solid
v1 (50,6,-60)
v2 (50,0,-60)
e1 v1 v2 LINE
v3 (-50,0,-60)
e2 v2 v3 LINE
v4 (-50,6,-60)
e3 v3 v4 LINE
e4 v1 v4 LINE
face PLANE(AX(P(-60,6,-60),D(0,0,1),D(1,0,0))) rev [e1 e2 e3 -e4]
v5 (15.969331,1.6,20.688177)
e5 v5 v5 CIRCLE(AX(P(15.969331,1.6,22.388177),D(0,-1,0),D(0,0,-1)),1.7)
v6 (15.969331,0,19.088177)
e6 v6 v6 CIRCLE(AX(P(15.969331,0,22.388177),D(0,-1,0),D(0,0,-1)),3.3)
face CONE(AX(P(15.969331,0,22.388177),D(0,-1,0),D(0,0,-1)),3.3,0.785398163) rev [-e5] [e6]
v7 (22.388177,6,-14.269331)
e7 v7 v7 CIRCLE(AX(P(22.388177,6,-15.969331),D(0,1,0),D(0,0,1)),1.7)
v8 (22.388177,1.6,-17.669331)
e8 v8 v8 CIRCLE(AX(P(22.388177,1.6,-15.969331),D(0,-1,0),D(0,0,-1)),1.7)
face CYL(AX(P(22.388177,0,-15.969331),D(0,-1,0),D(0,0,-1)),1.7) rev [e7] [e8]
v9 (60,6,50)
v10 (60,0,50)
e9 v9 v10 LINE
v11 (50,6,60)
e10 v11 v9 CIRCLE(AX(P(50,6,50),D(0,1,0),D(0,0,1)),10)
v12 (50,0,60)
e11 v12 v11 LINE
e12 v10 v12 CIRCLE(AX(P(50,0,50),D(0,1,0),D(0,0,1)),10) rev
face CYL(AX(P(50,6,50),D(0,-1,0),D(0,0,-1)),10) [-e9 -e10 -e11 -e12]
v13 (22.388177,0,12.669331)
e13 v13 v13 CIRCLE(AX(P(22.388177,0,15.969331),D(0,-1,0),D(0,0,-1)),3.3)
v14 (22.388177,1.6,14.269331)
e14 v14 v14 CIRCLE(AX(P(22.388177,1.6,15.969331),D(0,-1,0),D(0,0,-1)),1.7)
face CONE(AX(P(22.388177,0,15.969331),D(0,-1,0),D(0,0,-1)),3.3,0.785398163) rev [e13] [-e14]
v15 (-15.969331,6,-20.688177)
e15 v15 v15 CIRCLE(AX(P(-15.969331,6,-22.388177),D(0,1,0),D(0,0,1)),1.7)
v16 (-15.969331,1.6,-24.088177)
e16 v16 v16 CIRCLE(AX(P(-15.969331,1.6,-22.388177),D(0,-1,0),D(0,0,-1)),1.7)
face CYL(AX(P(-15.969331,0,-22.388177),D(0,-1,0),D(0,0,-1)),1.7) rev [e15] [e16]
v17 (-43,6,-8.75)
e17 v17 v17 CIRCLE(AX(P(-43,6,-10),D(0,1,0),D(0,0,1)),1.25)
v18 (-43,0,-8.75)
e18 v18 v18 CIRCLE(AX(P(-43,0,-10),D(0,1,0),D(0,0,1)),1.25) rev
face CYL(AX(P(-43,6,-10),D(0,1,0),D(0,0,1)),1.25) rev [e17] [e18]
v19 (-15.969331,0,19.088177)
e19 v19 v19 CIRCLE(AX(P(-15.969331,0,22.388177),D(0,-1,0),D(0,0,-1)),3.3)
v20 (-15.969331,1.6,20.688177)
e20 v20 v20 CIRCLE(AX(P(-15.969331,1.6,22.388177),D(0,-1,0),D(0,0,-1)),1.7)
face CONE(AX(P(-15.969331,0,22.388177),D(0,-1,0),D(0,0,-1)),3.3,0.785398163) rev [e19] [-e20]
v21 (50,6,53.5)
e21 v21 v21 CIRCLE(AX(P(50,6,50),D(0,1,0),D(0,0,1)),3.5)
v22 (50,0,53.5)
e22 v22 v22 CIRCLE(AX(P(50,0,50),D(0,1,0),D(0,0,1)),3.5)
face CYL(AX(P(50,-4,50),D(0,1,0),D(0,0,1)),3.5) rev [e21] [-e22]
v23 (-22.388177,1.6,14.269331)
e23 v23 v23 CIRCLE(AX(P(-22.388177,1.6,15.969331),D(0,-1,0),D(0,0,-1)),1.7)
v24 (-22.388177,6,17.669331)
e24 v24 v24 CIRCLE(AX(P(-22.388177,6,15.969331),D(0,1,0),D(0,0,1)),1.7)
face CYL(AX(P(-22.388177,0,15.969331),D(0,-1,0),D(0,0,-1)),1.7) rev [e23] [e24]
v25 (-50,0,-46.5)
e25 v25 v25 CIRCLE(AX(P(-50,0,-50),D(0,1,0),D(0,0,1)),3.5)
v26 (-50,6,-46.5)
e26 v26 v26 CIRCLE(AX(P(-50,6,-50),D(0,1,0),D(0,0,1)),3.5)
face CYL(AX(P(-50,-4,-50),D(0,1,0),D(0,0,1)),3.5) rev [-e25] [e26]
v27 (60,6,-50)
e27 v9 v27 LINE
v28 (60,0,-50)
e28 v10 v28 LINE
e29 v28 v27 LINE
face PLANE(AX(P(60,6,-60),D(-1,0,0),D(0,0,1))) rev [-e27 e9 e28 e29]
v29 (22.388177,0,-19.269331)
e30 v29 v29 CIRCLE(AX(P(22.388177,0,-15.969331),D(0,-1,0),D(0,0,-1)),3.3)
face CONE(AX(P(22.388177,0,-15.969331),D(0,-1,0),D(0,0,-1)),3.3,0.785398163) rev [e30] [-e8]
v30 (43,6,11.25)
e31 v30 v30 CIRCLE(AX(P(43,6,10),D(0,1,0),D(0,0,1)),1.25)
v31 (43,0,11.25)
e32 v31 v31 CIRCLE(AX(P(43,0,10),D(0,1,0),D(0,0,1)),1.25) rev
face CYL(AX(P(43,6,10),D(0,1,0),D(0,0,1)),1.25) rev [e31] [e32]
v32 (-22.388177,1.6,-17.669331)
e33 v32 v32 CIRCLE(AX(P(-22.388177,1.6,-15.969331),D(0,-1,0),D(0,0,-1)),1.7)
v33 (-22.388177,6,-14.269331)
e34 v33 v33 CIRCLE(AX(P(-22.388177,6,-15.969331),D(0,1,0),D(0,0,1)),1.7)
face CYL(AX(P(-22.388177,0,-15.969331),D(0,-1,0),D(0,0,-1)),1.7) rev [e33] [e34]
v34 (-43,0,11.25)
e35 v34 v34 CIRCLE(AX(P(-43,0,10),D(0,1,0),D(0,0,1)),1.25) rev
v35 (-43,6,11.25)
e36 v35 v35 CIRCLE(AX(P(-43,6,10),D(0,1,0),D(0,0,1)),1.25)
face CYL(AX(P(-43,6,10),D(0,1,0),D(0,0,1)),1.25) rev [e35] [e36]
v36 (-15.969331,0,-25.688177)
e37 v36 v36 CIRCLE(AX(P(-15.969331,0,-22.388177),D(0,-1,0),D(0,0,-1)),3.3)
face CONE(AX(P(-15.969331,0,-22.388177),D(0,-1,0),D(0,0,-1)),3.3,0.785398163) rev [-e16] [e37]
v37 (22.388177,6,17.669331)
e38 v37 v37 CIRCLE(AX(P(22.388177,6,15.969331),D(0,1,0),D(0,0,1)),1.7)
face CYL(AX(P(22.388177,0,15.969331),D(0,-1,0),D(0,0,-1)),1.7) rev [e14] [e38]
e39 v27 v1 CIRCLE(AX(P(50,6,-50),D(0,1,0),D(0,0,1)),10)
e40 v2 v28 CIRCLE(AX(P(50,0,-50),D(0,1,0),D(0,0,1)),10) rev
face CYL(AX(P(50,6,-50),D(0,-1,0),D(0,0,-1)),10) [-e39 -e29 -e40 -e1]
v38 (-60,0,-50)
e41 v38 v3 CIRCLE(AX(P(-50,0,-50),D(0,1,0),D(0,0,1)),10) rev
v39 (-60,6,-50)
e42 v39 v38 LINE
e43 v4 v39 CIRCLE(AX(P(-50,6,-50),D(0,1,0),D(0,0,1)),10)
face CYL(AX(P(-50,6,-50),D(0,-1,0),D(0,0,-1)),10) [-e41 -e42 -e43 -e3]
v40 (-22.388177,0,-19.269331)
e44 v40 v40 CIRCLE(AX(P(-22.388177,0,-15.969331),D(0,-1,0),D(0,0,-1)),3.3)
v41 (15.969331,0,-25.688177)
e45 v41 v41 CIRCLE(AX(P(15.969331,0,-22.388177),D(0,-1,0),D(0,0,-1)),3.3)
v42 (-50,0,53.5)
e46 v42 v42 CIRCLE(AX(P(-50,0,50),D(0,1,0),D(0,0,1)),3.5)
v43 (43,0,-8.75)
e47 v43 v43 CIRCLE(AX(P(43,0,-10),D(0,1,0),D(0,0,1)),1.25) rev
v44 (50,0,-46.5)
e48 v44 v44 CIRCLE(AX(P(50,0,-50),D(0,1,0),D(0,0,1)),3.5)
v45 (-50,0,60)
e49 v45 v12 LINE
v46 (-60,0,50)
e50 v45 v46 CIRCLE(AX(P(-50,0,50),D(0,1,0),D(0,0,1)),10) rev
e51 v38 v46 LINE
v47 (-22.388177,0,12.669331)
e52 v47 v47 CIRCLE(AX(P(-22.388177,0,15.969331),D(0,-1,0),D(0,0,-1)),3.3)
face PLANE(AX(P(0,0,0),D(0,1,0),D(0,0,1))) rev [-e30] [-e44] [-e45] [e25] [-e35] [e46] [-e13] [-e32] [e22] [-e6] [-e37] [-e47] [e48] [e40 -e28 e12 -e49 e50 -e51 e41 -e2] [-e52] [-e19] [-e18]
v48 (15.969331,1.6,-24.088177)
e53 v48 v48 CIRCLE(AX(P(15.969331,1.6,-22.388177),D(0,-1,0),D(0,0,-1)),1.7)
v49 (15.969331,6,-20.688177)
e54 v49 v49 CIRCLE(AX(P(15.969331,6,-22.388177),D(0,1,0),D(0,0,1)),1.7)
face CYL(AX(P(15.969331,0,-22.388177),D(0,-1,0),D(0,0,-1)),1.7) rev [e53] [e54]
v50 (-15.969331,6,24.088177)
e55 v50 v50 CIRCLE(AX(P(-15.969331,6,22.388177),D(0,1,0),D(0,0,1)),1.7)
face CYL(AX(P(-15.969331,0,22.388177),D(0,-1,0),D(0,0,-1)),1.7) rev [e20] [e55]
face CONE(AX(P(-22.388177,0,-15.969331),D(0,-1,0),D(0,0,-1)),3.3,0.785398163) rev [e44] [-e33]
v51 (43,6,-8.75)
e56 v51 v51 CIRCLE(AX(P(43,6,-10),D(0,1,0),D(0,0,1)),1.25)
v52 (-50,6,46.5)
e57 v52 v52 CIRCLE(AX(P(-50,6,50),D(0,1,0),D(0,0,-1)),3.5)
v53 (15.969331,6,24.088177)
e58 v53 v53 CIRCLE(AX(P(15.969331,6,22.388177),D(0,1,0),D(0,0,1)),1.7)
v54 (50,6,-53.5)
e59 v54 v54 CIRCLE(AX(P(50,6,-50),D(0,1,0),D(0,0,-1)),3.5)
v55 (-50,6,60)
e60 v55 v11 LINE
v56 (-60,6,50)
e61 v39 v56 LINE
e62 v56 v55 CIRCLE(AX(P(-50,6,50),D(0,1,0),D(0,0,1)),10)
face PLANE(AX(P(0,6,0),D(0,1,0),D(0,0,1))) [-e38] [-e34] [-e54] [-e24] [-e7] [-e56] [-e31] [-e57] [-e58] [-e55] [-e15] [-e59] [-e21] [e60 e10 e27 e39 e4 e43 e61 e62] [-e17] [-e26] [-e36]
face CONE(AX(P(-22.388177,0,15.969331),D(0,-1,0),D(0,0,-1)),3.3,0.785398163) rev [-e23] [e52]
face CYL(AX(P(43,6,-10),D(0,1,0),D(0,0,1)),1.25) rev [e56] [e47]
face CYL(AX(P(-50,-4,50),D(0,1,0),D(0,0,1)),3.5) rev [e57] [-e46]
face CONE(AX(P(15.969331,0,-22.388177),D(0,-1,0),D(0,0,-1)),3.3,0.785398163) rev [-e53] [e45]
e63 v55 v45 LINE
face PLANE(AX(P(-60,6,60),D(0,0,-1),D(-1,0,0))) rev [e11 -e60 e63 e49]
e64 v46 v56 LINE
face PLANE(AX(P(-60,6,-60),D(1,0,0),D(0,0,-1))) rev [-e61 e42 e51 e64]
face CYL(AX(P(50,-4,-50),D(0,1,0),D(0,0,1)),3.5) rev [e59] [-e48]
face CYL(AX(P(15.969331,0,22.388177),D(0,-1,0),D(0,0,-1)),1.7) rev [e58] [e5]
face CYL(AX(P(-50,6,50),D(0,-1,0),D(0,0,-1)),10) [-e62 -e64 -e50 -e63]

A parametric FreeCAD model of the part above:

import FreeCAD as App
import Part
import Sketcher

V = App.Vector


def edges_at(feature, points):
    """Names of the edges that pass closest to the given points."""
    edges = feature.Shape.Edges
    near = lambda p: min(range(len(edges)), key=lambda i: edges[i].distToShape(Part.Vertex(*p))[0])
    return sorted({f"Edge{near(p) + 1}" for p in points})

doc = App.newDocument("Part")
body = doc.addObject("PartDesign::Body", "Body")

# Sketch on XZ plane
sketch1 = doc.addObject("Sketcher::SketchObject", "Sketch")
body.addObject(sketch1)
sketch1.AttachmentSupport = (doc.XZ_Plane, [""])
sketch1.MapMode = "FlatFace"
sketch1.addGeometry(Part.LineSegment(V(-60, -60, 0), V(-60, 60, 0)), False)
sketch1.addGeometry(Part.LineSegment(V(-60, 60, 0), V(60, 60, 0)), False)
sketch1.addGeometry(Part.LineSegment(V(60, 60, 0), V(60, -60, 0)), False)
sketch1.addGeometry(Part.LineSegment(V(60, -60, 0), V(-60, -60, 0)), False)
sketch1.addConstraint(Sketcher.Constraint("Coincident", 0, 2, 1, 1))
sketch1.addConstraint(Sketcher.Constraint("Coincident", 1, 2, 2, 1))
sketch1.addConstraint(Sketcher.Constraint("Coincident", 2, 2, 3, 1))
sketch1.addConstraint(Sketcher.Constraint("Coincident", 3, 2, 0, 1))
sketch1.addConstraint(Sketcher.Constraint("Vertical", 0))
sketch1.addConstraint(Sketcher.Constraint("Horizontal", 1))
sketch1.addConstraint(Sketcher.Constraint("Vertical", 2))
sketch1.addConstraint(Sketcher.Constraint("Horizontal", 3))
sketch1.addConstraint(Sketcher.Constraint("Symmetric", 0, 2, 2, 2, -1, 1))
sketch1.addConstraint(Sketcher.Constraint("Equal", 3, 0))
sketch1.addConstraint(Sketcher.Constraint("DistanceX", 1, 1, 1, 2, 120.0))
pad1 = doc.addObject("PartDesign::Pad", "Pad")
body.addObject(pad1)
pad1.Profile = sketch1
pad1.Length = 6
pad1.Reversed = True

# Sketch on XZ plane
sketch2 = doc.addObject("Sketcher::SketchObject", "Sketch001")
body.addObject(sketch2)
sketch2.AttachmentSupport = (doc.XZ_Plane, [""])
sketch2.MapMode = "FlatFace"
sketch2.AttachmentOffset = App.Placement(V(0, 0, -6), App.Rotation())
sketch2.addGeometry(Part.Circle(V(-50, -50, 0), V(0, 0, 1), 3.5), False)
sketch2.addGeometry(Part.Circle(V(50, -50, 0), V(0, 0, 1), 3.5), False)
sketch2.addGeometry(Part.Circle(V(50, 50, 0), V(0, 0, 1), 3.5), False)
sketch2.addGeometry(Part.Circle(V(-50, 50, 0), V(0, 0, 1), 3.5), False)
sketch2.addConstraint(Sketcher.Constraint("Equal", 0, 1))
sketch2.addConstraint(Sketcher.Constraint("Equal", 1, 2))
sketch2.addConstraint(Sketcher.Constraint("Equal", 2, 3))
sketch2.addConstraint(Sketcher.Constraint("Symmetric", 0, 3, 2, 3, -1, 1))
sketch2.addConstraint(Sketcher.Constraint("Symmetric", 1, 3, 3, 3, -1, 1))
sketch2.addConstraint(Sketcher.Constraint("Symmetric", 0, 3, 1, 3, -2))
sketch2.addConstraint(Sketcher.Constraint("Diameter", 0, 7.0))
sketch2.addConstraint(Sketcher.Constraint("DistanceX", 0, 3, -1, 1, 50.0))
sketch2.addConstraint(Sketcher.Constraint("DistanceY", 0, 3, -1, 1, 50.0))
pocket1 = doc.addObject("PartDesign::Pocket", "Pocket")
body.addObject(pocket1)
pocket1.Profile = sketch2
pocket1.Length = 10
pocket1.Reversed = True
doc.recompute()

fillet = doc.addObject("PartDesign::Fillet", "Fillet")
body.addObject(fillet)
fillet.Base = (pocket1, edges_at(pocket1, [
    (60, 3, 60),
    (-60, 3, 60),
    (-60, 3, -60),
    (60, 3, -60),
]))
fillet.Radius = 10

# Sketch on XZ plane
sketch3 = doc.addObject("Sketcher::SketchObject", "Sketch002")
body.addObject(sketch3)
sketch3.AttachmentSupport = (doc.XZ_Plane, [""])
sketch3.MapMode = "FlatFace"
sketch3.addGeometry(Part.Circle(V(15.969331, -22.388177, 0), V(0, 0, 1), 1.7), False)
sketch3.addGeometry(Part.Circle(V(22.388177, -15.969331, 0), V(0, 0, 1), 1.7), False)
sketch3.addGeometry(Part.Circle(V(22.388177, 15.969331, 0), V(0, 0, 1), 1.7), False)
sketch3.addGeometry(Part.Circle(V(15.969331, 22.388177, 0), V(0, 0, 1), 1.7), False)
sketch3.addGeometry(Part.Circle(V(-15.969331, 22.388177, 0), V(0, 0, 1), 1.7), False)
sketch3.addGeometry(Part.Circle(V(-22.388177, 15.969331, 0), V(0, 0, 1), 1.7), False)
sketch3.addGeometry(Part.Circle(V(-22.388177, -15.969331, 0), V(0, 0, 1), 1.7), False)
sketch3.addGeometry(Part.Circle(V(-15.969331, -22.388177, 0), V(0, 0, 1), 1.7), False)
sketch3.addConstraint(Sketcher.Constraint("Equal", 0, 1))
sketch3.addConstraint(Sketcher.Constraint("Equal", 1, 2))
sketch3.addConstraint(Sketcher.Constraint("Equal", 2, 3))
sketch3.addConstraint(Sketcher.Constraint("Equal", 3, 4))
sketch3.addConstraint(Sketcher.Constraint("Equal", 4, 5))
sketch3.addConstraint(Sketcher.Constraint("Equal", 5, 6))
sketch3.addConstraint(Sketcher.Constraint("Equal", 6, 7))
sketch3.addConstraint(Sketcher.Constraint("Symmetric", 0, 3, 4, 3, -1, 1))
sketch3.addConstraint(Sketcher.Constraint("Symmetric", 1, 3, 5, 3, -1, 1))
sketch3.addConstraint(Sketcher.Constraint("Symmetric", 2, 3, 6, 3, -1, 1))
sketch3.addConstraint(Sketcher.Constraint("Symmetric", 3, 3, 7, 3, -1, 1))
sketch3.addConstraint(Sketcher.Constraint("Symmetric", 3, 3, 4, 3, -2))
sketch3.addConstraint(Sketcher.Constraint("Symmetric", 2, 3, 5, 3, -2))
sketch3.addConstraint(Sketcher.Constraint("Diameter", 0, 3.4))
sketch3.addConstraint(Sketcher.Constraint("DistanceX", -1, 1, 0, 3, 15.969331))
sketch3.addConstraint(Sketcher.Constraint("DistanceY", 1, 3, -1, 1, 15.969331))
sketch3.addConstraint(Sketcher.Constraint("DistanceY", 0, 3, 2, 3, 38.357508))
sketch3.addConstraint(Sketcher.Constraint("DistanceX", 4, 3, 2, 3, 38.357508))
doc.recompute()
hole = doc.addObject("PartDesign::Hole", "Hole")
body.addObject(hole)
hole.Profile = sketch3
hole.ThreadType = "None"
hole.Diameter = 3.4
hole.DepthType = "ThroughAll"
hole.HoleCutType = "Countersink"
hole.HoleCutDiameter = 6.6
hole.HoleCutCountersinkAngle = 90

# Sketch on XZ plane
sketch4 = doc.addObject("Sketcher::SketchObject", "Sketch003")
body.addObject(sketch4)
sketch4.AttachmentSupport = (doc.XZ_Plane, [""])
sketch4.MapMode = "FlatFace"
sketch4.AttachmentOffset = App.Placement(V(0, 0, -6), App.Rotation())
sketch4.addGeometry(Part.Circle(V(-43, 10, 0), V(0, 0, 1), 1.25), False)
sketch4.addGeometry(Part.Circle(V(-43, -10, 0), V(0, 0, 1), 1.25), False)
sketch4.addGeometry(Part.Circle(V(43, 10, 0), V(0, 0, 1), 1.25), False)
sketch4.addGeometry(Part.Circle(V(43, -10, 0), V(0, 0, 1), 1.25), False)
sketch4.addConstraint(Sketcher.Constraint("Equal", 0, 1))
sketch4.addConstraint(Sketcher.Constraint("Equal", 1, 2))
sketch4.addConstraint(Sketcher.Constraint("Equal", 2, 3))
sketch4.addConstraint(Sketcher.Constraint("Symmetric", 1, 3, 2, 3, -1, 1))
sketch4.addConstraint(Sketcher.Constraint("Symmetric", 0, 3, 3, 3, -1, 1))
sketch4.addConstraint(Sketcher.Constraint("Symmetric", 0, 3, 2, 3, -2))
sketch4.addConstraint(Sketcher.Constraint("Diameter", 0, 2.5))
sketch4.addConstraint(Sketcher.Constraint("DistanceX", 0, 3, -1, 1, 43.0))
sketch4.addConstraint(Sketcher.Constraint("DistanceY", -1, 1, 0, 3, 10.0))
doc.recompute()
hole2 = doc.addObject("PartDesign::Hole", "Hole001")
body.addObject(hole2)
hole2.Profile = sketch4
hole2.ThreadType = "None"
hole2.Diameter = 2.5
hole2.DepthType = "Dimension"
hole2.Depth = 6
hole2.DrillPoint = "Angled"
hole2.DrillPointAngle = 118
hole2.Reversed = True

doc.recompute()
